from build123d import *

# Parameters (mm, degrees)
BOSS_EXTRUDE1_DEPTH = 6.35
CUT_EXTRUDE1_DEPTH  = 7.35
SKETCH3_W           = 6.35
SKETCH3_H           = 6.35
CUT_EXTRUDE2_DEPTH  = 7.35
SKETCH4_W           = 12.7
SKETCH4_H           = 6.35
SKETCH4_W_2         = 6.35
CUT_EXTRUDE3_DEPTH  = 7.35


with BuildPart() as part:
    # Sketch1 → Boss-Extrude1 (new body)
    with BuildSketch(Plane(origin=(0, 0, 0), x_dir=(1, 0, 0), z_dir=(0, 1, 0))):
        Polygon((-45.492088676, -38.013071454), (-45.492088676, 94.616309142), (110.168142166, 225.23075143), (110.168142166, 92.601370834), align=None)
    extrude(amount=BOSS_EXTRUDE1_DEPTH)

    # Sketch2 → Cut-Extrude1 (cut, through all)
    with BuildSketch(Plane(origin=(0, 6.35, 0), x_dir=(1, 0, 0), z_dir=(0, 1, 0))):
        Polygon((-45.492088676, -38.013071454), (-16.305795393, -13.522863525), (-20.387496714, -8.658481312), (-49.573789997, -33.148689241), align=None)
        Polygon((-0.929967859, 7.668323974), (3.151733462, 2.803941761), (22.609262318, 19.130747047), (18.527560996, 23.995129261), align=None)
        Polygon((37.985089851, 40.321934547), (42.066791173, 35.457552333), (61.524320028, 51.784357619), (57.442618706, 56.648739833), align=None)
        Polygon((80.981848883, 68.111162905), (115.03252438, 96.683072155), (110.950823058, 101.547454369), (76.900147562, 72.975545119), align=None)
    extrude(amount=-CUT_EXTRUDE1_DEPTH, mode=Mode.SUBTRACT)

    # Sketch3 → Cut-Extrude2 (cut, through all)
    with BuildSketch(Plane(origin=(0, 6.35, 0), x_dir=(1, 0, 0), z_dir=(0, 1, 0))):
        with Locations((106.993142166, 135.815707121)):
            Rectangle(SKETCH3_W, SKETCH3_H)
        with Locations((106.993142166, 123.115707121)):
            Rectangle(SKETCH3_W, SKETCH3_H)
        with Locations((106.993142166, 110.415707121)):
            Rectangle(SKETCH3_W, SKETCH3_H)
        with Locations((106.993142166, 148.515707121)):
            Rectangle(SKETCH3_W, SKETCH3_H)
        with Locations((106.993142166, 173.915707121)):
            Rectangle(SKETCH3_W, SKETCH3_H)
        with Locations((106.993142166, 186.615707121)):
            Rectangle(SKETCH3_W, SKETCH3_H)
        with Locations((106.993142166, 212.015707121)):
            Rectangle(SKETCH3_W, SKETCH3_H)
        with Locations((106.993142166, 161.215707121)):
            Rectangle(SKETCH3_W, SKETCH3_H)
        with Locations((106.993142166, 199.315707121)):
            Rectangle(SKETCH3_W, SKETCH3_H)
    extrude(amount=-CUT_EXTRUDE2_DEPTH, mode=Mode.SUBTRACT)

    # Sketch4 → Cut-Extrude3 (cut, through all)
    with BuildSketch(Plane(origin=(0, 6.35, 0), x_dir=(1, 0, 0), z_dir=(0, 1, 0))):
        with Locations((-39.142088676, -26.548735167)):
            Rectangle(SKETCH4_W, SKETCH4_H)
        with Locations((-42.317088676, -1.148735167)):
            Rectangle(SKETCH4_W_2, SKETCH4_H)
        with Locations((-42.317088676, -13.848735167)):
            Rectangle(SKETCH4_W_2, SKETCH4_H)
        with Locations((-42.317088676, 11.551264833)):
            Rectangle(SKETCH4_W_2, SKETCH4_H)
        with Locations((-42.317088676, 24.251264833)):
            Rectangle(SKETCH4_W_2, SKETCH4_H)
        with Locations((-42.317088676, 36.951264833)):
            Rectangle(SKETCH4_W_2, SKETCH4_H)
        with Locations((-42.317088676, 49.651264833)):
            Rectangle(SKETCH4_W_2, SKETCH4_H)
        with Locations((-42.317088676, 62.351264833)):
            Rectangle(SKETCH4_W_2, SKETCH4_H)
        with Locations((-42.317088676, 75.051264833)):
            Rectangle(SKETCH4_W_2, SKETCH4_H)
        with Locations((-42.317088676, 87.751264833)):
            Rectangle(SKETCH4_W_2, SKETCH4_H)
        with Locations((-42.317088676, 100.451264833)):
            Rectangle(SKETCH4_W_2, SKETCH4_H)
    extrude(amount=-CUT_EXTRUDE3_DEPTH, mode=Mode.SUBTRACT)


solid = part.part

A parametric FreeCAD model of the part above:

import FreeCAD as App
import Part
import Sketcher
Q = App.Units.Quantity

doc = App.newDocument("Part")
body = doc.addObject("PartDesign::Body", "Body")

sketch1 = body.newObject("Sketcher::SketchObject", "Sketch")
sketch1.AttachmentSupport = (doc.getObject("XZ_Plane"), [""])
sketch1.MapMode = "FlatFace"
sketch1.addGeometry([
    Part.LineSegment(App.Vector(-45, -95, 0), App.Vector(-45, 38, 0)),
    Part.LineSegment(App.Vector(-45, 38, 0), App.Vector(110, -93, 0)),
    Part.LineSegment(App.Vector(110, -93, 0), App.Vector(110, -225, 0)),
    Part.LineSegment(App.Vector(110, -225, 0), App.Vector(-45, -95, 0)),
], False)
sketch1.addConstraint([
    Sketcher.Constraint("Coincident", 0, 2, 1, 1),
    Sketcher.Constraint("Coincident", 1, 2, 2, 1),
    Sketcher.Constraint("Coincident", 2, 2, 3, 1),
    Sketcher.Constraint("Coincident", 3, 2, 0, 1),
    Sketcher.Constraint("Vertical", 0),
    Sketcher.Constraint("Vertical", 2),
    Sketcher.Constraint("Parallel", 1, 3),
    Sketcher.Constraint("Distance", 1, Q("8 in")),
    Sketcher.Constraint("Angle", 1, Q("-40 deg")),
    Sketcher.Constraint("DistanceY", 0, 1, 0, 2, Q("132.629381 mm")),
    Sketcher.Constraint("DistanceX", 0, 2, -1, 1, Q("45.492089 mm")),
    Sketcher.Constraint("DistanceY", -1, 1, 0, 2, Q("38.013071 mm")),
])
pad1 = body.newObject("PartDesign::Pad", "Pad")
pad1.Profile = sketch1
pad1.Length = Q("0.25 in")
pad1.Reversed = True

sketch2 = body.newObject("Sketcher::SketchObject", "Sketch001")
sketch2.AttachmentSupport = (doc.getObject("XZ_Plane"), [""])
sketch2.MapMode = "FlatFace"
sketch2.AttachmentOffset = App.Placement(App.Vector(0, 0, -0.25 * 25.4), App.Rotation())
sketch2.addGeometry([
    Part.LineSegment(App.Vector(-45, 38, 0), App.Vector(-16, 14, 0)),
    Part.LineSegment(App.Vector(-16, 14, 0), App.Vector(-20, 9, 0)),
    Part.LineSegment(App.Vector(-20, 9, 0), App.Vector(-50, 33, 0)),
    Part.LineSegment(App.Vector(-50, 33, 0), App.Vector(-45, 38, 0)),
    Part.LineSegment(App.Vector(-1, -8, 0), App.Vector(3, -3, 0)),
    Part.LineSegment(App.Vector(3, -3, 0), App.Vector(23, -19, 0)),
    Part.LineSegment(App.Vector(23, -19, 0), App.Vector(19, -24, 0)),
    Part.LineSegment(App.Vector(19, -24, 0), App.Vector(-1, -8, 0)),
    Part.LineSegment(App.Vector(38, -40, 0), App.Vector(42, -35, 0)),
    Part.LineSegment(App.Vector(42, -35, 0), App.Vector(62, -52, 0)),
    Part.LineSegment(App.Vector(62, -52, 0), App.Vector(57, -57, 0)),
    Part.LineSegment(App.Vector(57, -57, 0), App.Vector(38, -40, 0)),
    Part.LineSegment(App.Vector(81, -68, 0), App.Vector(115, -97, 0)),
    Part.LineSegment(App.Vector(115, -97, 0), App.Vector(111, -102, 0)),
    Part.LineSegment(App.Vector(111, -102, 0), App.Vector(77, -73, 0)),
    Part.LineSegment(App.Vector(77, -73, 0), App.Vector(81, -68, 0)),
], False)
sketch2.addConstraint([
    Sketcher.Constraint("Coincident", 0, 2, 1, 1),
    Sketcher.Constraint("Coincident", 1, 2, 2, 1),
    Sketcher.Constraint("Coincident", 2, 2, 3, 1),
    Sketcher.Constraint("Coincident", 3, 2, 0, 1),
    Sketcher.Constraint("Coincident", 4, 2, 5, 1),
    Sketcher.Constraint("Coincident", 5, 2, 6, 1),
    Sketcher.Constraint("Coincident", 6, 2, 7, 1),
    Sketcher.Constraint("Coincident", 7, 2, 4, 1),
    Sketcher.Constraint("Coincident", 8, 2, 9, 1),
    Sketcher.Constraint("Coincident", 9, 2, 10, 1),
    Sketcher.Constraint("Coincident", 10, 2, 11, 1),
    Sketcher.Constraint("Coincident", 11, 2, 8, 1),
    Sketcher.Constraint("Coincident", 12, 2, 13, 1),
    Sketcher.Constraint("Coincident", 13, 2, 14, 1),
    Sketcher.Constraint("Coincident", 14, 2, 15, 1),
    Sketcher.Constraint("Coincident", 15, 2, 12, 1),
    Sketcher.Constraint("Perpendicular", 0, 1),
    Sketcher.Constraint("Perpendicular", 1, 2),
    Sketcher.Constraint("Perpendicular", 2, 3),
    Sketcher.Constraint("Parallel", 3, 4),
    Sketcher.Constraint("Perpendicular", 4, 5),
    Sketcher.Constraint("Perpendicular", 5, 6),
    Sketcher.Constraint("Perpendicular", 6, 7),
    Sketcher.Constraint("Perpendicular", 7, 8),
    Sketcher.Constraint("Perpendicular", 8, 9),
    Sketcher.Constraint("Perpendicular", 9, 10),
    Sketcher.Constraint("Perpendicular", 10, 11),
    Sketcher.Constraint("Parallel", 11, 12),
    Sketcher.Constraint("Perpendicular", 12, 13),
    Sketcher.Constraint("Perpendicular", 13, 14),
    Sketcher.Constraint("Perpendicular", 14, 15),
    Sketcher.Constraint("Equal", 3, 4),
    Sketcher.Constraint("Equal", 6, 8),
    Sketcher.Constraint("Equal", 7, 9),
    Sketcher.Constraint("Equal", 10, 13),
    Sketcher.Constraint("Distance", 5, Q("1 in")),
    Sketcher.Constraint("Angle", 0, Q("-40 deg")),
    Sketcher.Constraint("Distance", 0, Q("1.5 in")),
    Sketcher.Constraint("Distance", 1, Q("0.25 in")),
    Sketcher.Constraint("Distance", 12, Q("1.75 in")),
    Sketcher.Constraint("DistanceY", -1, 1, 1, 2, Q("8.658481 mm")),
    Sketcher.Constraint("DistanceX", 2, 2, -1, 1, Q("49.57379 mm")),
    Sketcher.Constraint("DistanceY", 4, 2, -1, 1, Q("2.803942 mm")),
    Sketcher.Constraint("DistanceX", -1, 1, 6, 2, Q("18.527561 mm")),
    Sketcher.Constraint("DistanceX", -1, 1, 8, 2, Q("42.066791 mm")),
    Sketcher.Constraint("DistanceY", 10, 2, -1, 1, Q("56.64874 mm")),
    Sketcher.Constraint("DistanceX", -1, 1, 15, 2, Q("80.981849 mm")),
    Sketcher.Constraint("DistanceY", 12, 2, 8, 2, Q("61.22552 mm")),
])
pocket1 = body.newObject("PartDesign::Pocket", "Pocket")
pocket1.Profile = sketch2
pocket1.Type = "ThroughAll"
pocket1.Reversed = True

sketch3 = body.newObject("Sketcher::SketchObject", "Sketch002")
sketch3.AttachmentSupport = (doc.getObject("XZ_Plane"), [""])
sketch3.MapMode = "FlatFace"
sketch3.AttachmentOffset = App.Placement(App.Vector(0, 0, -0.25 * 25.4), App.Rotation())
sketch3.addGeometry([
    Part.LineSegment(App.Vector(104, -139, 0), App.Vector(104, -133, 0)),
    Part.LineSegment(App.Vector(104, -133, 0), App.Vector(110, -133, 0)),
    Part.LineSegment(App.Vector(110, -133, 0), App.Vector(110, -139, 0)),
    Part.LineSegment(App.Vector(110, -139, 0), App.Vector(104, -139, 0)),
    Part.LineSegment(App.Vector(104, -126, 0), App.Vector(104, -120, 0)),
    Part.LineSegment(App.Vector(104, -120, 0), App.Vector(110, -120, 0)),
    Part.LineSegment(App.Vector(110, -120, 0), App.Vector(110, -126, 0)),
    Part.LineSegment(App.Vector(110, -126, 0), App.Vector(104, -126, 0)),
    Part.LineSegment(App.Vector(104, -114, 0), App.Vector(104, -107, 0)),
    Part.LineSegment(App.Vector(104, -107, 0), App.Vector(110, -107, 0)),
    Part.LineSegment(App.Vector(110, -107, 0), App.Vector(110, -114, 0)),
    Part.LineSegment(App.Vector(110, -114, 0), App.Vector(104, -114, 0)),
    Part.LineSegment(App.Vector(104, -152, 0), App.Vector(104, -145, 0)),
    Part.LineSegment(App.Vector(104, -145, 0), App.Vector(110, -145, 0)),
    Part.LineSegment(App.Vector(110, -145, 0), App.Vector(110, -152, 0)),
    Part.LineSegment(App.Vector(110, -152, 0), App.Vector(104, -152, 0)),
    Part.LineSegment(App.Vector(104, -177, 0), App.Vector(104, -171, 0)),
    Part.LineSegment(App.Vector(104, -171, 0), App.Vector(110, -171, 0)),
    Part.LineSegment(App.Vector(110, -171, 0), App.Vector(110, -177, 0)),
    Part.LineSegment(App.Vector(110, -177, 0), App.Vector(104, -177, 0)),
    Part.LineSegment(App.Vector(104, -190, 0), App.Vector(104, -183, 0)),
    Part.LineSegment(App.Vector(104, -183, 0), App.Vector(110, -183, 0)),
    Part.LineSegment(App.Vector(110, -183, 0), App.Vector(110, -190, 0)),
    Part.LineSegment(App.Vector(110, -190, 0), App.Vector(104, -190, 0)),
    Part.LineSegment(App.Vector(104, -215, 0), App.Vector(104, -209, 0)),
    Part.LineSegment(App.Vector(104, -209, 0), App.Vector(110, -209, 0)),
    Part.LineSegment(App.Vector(110, -209, 0), App.Vector(110, -215, 0)),
    Part.LineSegment(App.Vector(110, -215, 0), App.Vector(104, -215, 0)),
    Part.LineSegment(App.Vector(104, -164, 0), App.Vector(104, -158, 0)),
    Part.LineSegment(App.Vector(104, -158, 0), App.Vector(110, -158, 0)),
    Part.LineSegment(App.Vector(110, -158, 0), App.Vector(110, -164, 0)),
    Part.LineSegment(App.Vector(110, -164, 0), App.Vector(104, -164, 0)),
    Part.LineSegment(App.Vector(104, -202, 0), App.Vector(104, -196, 0)),
    Part.LineSegment(App.Vector(104, -196, 0), App.Vector(110, -196, 0)),
    Part.LineSegment(App.Vector(110, -196, 0), App.Vector(110, -202, 0)),
    Part.LineSegment(App.Vector(110, -202, 0), App.Vector(104, -202, 0)),
], False)
sketch3.addConstraint([
    Sketcher.Constraint("Coincident", 0, 2, 1, 1),
    Sketcher.Constraint("Coincident", 1, 2, 2, 1),
    Sketcher.Constraint("Coincident", 2, 2, 3, 1),
    Sketcher.Constraint("Coincident", 3, 2, 0, 1),
    Sketcher.Constraint("Coincident", 4, 2, 5, 1),
    Sketcher.Constraint("Coincident", 5, 2, 6, 1),
    Sketcher.Constraint("Coincident", 6, 2, 7, 1),
    Sketcher.Constraint("Coincident", 7, 2, 4, 1),
    Sketcher.Constraint("Coincident", 8, 2, 9, 1),
    Sketcher.Constraint("Coincident", 9, 2, 10, 1),
    Sketcher.Constraint("Coincident", 10, 2, 11, 1),
    Sketcher.Constraint("Coincident", 11, 2, 8, 1),
    Sketcher.Constraint("Coincident", 12, 2, 13, 1),
    Sketcher.Constraint("Coincident", 13, 2, 14, 1),
    Sketcher.Constraint("Coincident", 14, 2, 15, 1),
    Sketcher.Constraint("Coincident", 15, 2, 12, 1),
    Sketcher.Constraint("Coincident", 16, 2, 17, 1),
    Sketcher.Constraint("Coincident", 17, 2, 18, 1),
    Sketcher.Constraint("Coincident", 18, 2, 19, 1),
    Sketcher.Constraint("Coincident", 19, 2, 16, 1),
    Sketcher.Constraint("Coincident", 20, 2, 21, 1),
    Sketcher.Constraint("Coincident", 21, 2, 22, 1),
    Sketcher.Constraint("Coincident", 22, 2, 23, 1),
    Sketcher.Constraint("Coincident", 23, 2, 20, 1),
    Sketcher.Constraint("Coincident", 24, 2, 25, 1),
    Sketcher.Constraint("Coincident", 25, 2, 26, 1),
    Sketcher.Constraint("Coincident", 26, 2, 27, 1),
    Sketcher.Constraint("Coincident", 27, 2, 24, 1),
    Sketcher.Constraint("Coincident", 28, 2, 29, 1),
    Sketcher.Constraint("Coincident", 29, 2, 30, 1),
    Sketcher.Constraint("Coincident", 30, 2, 31, 1),
    Sketcher.Constraint("Coincident", 31, 2, 28, 1),
    Sketcher.Constraint("Coincident", 32, 2, 33, 1),
    Sketcher.Constraint("Coincident", 33, 2, 34, 1),
    Sketcher.Constraint("Coincident", 34, 2, 35, 1),
    Sketcher.Constraint("Coincident", 35, 2, 32, 1),
    Sketcher.Constraint("Vertical", 0),
    Sketcher.Constraint("Horizontal", 1),
    Sketcher.Constraint("Vertical", 2),
    Sketcher.Constraint("Horizontal", 3),
    Sketcher.Constraint("Vertical", 4),
    Sketcher.Constraint("Horizontal", 5),
    Sketcher.Constraint("Vertical", 6),
    Sketcher.Constraint("Horizontal", 7),
    Sketcher.Constraint("Vertical", 8),
    Sketcher.Constraint("Horizontal", 9),
    Sketcher.Constraint("Vertical", 10),
    Sketcher.Constraint("Horizontal", 11),
    Sketcher.Constraint("Vertical", 12),
    Sketcher.Constraint("Horizontal", 13),
    Sketcher.Constraint("Vertical", 14),
    Sketcher.Constraint("Horizontal", 15),
    Sketcher.Constraint("Vertical", 16),
    Sketcher.Constraint("Horizontal", 17),
    Sketcher.Constraint("Vertical", 18),
    Sketcher.Constraint("Horizontal", 19),
    Sketcher.Constraint("Vertical", 20),
    Sketcher.Constraint("Horizontal", 21),
    Sketcher.Constraint("Vertical", 22),
    Sketcher.Constraint("Horizontal", 23),
    Sketcher.Constraint("Vertical", 24),
    Sketcher.Constraint("Horizontal", 25),
    Sketcher.Constraint("Vertical", 26),
    Sketcher.Constraint("Horizontal", 27),
    Sketcher.Constraint("Vertical", 28),
    Sketcher.Constraint("Horizontal", 29),
    Sketcher.Constraint("Vertical", 30),
    Sketcher.Constraint("Horizontal", 31),
    Sketcher.Constraint("Vertical", 32),
    Sketcher.Constraint("Horizontal", 33),
    Sketcher.Constraint("Vertical", 34),
    Sketcher.Constraint("Horizontal", 35),
    Sketcher.Constraint("Vertical", 3, 2, 4, 2),
    Sketcher.Constraint("Vertical", 2, 2, 5, 2),
    Sketcher.Constraint("Vertical", 7, 2, 8, 2),
    Sketcher.Constraint("Vertical", 6, 2, 9, 2),
    Sketcher.Constraint("Vertical", 11, 2, 12, 2),
    Sketcher.Constraint("Vertical", 10, 2, 13, 2),
    Sketcher.Constraint("Vertical", 15, 2, 16, 2),
    Sketcher.Constraint("Vertical", 14, 2, 17, 2),
    Sketcher.Constraint("Vertical", 19, 2, 20, 2),
    Sketcher.Constraint("Vertical", 18, 2, 21, 2),
    Sketcher.Constraint("Vertical", 23, 2, 24, 2),
    Sketcher.Constraint("Vertical", 22, 2, 25, 2),
    Sketcher.Constraint("Vertical", 27, 2, 28, 2),
    Sketcher.Constraint("Vertical", 26, 2, 29, 2),
    Sketcher.Constraint("Vertical", 31, 2, 32, 2),
    Sketcher.Constraint("Vertical", 30, 2, 33, 2),
    Sketcher.Constraint("Equal", 35, 0),
    Sketcher.Constraint("Equal", 2, 4),
    Sketcher.Constraint("Equal", 6, 8),
    Sketcher.Constraint("Equal", 10, 12),
    Sketcher.Constraint("Equal", 14, 16),
    Sketcher.Constraint("Equal", 18, 20),
    Sketcher.Constraint("Equal", 22, 24),
    Sketcher.Constraint("Equal", 26, 28),
    Sketcher.Constraint("Equal", 30, 32),
    Sketcher.Constraint("DistanceY", 0, 2, 8, 2, Q("1 in")),
    Sketcher.Constraint("DistanceY", 16, 2, 12, 2, Q("1 in")),
    Sketcher.Constraint("DistanceY", 24, 2, 20, 2, Q("1 in")),
    Sketcher.Constraint("DistanceX", 1, 1, 1, 2, Q("0.25 in")),
    Sketcher.Constraint("DistanceY", 0, 2, 4, 2, Q("0.5 in")),
    Sketcher.Constraint("DistanceY", 12, 2, 0, 2, Q("0.5 in")),
    Sketcher.Constraint("DistanceY", 20, 2, 16, 2, Q("0.5 in")),
    Sketcher.Constraint("DistanceY", 28, 2, 12, 2, Q("0.5 in")),
    Sketcher.Constraint("DistanceY", 32, 2, 20, 2, Q("0.5 in")),
    Sketcher.Constraint("DistanceX", -1, 1, 0, 2, Q("103.818142 mm")),
    Sketcher.Constraint("DistanceY", 0, 2, -1, 1, Q("132.640707 mm")),
])
pocket2 = body.newObject("PartDesign::Pocket", "Pocket001")
pocket2.Profile = sketch3
pocket2.Type = "ThroughAll"
pocket2.Reversed = True

sketch4 = body.newObject("Sketcher::SketchObject", "Sketch003")
sketch4.AttachmentSupport = (doc.getObject("XZ_Plane"), [""])
sketch4.MapMode = "FlatFace"
sketch4.AttachmentOffset = App.Placement(App.Vector(0, 0, -0.25 * 25.4), App.Rotation())
sketch4.addGeometry([
    Part.LineSegment(App.Vector(-45, 23, 0), App.Vector(-45, 30, 0)),
    Part.LineSegment(App.Vector(-45, 30, 0), App.Vector(-33, 30, 0)),
    Part.LineSegment(App.Vector(-33, 30, 0), App.Vector(-33, 23, 0)),
    Part.LineSegment(App.Vector(-33, 23, 0), App.Vector(-45, 23, 0)),
    Part.LineSegment(App.Vector(-45, -2, 0), App.Vector(-45, 4, 0)),
    Part.LineSegment(App.Vector(-45, 4, 0), App.Vector(-39, 4, 0)),
    Part.LineSegment(App.Vector(-39, 4, 0), App.Vector(-39, -2, 0)),
    Part.LineSegment(App.Vector(-39, -2, 0), App.Vector(-45, -2, 0)),
    Part.LineSegment(App.Vector(-45, 11, 0), App.Vector(-45, 17, 0)),
    Part.LineSegment(App.Vector(-45, 17, 0), App.Vector(-39, 17, 0)),
    Part.LineSegment(App.Vector(-39, 17, 0), App.Vector(-39, 11, 0)),
    Part.LineSegment(App.Vector(-39, 11, 0), App.Vector(-45, 11, 0)),
    Part.LineSegment(App.Vector(-45, -15, 0), App.Vector(-45, -8, 0)),
    Part.LineSegment(App.Vector(-45, -8, 0), App.Vector(-39, -8, 0)),
    Part.LineSegment(App.Vector(-39, -8, 0), App.Vector(-39, -15, 0)),
    Part.LineSegment(App.Vector(-39, -15, 0), App.Vector(-45, -15, 0)),
    Part.LineSegment(App.Vector(-45, -27, 0), App.Vector(-45, -21, 0)),
    Part.LineSegment(App.Vector(-45, -21, 0), App.Vector(-39, -21, 0)),
    Part.LineSegment(App.Vector(-39, -21, 0), App.Vector(-39, -27, 0)),
    Part.LineSegment(App.Vector(-39, -27, 0), App.Vector(-45, -27, 0)),
    Part.LineSegment(App.Vector(-45, -40, 0), App.Vector(-45, -34, 0)),
    Part.LineSegment(App.Vector(-45, -34, 0), App.Vector(-39, -34, 0)),
    Part.LineSegment(App.Vector(-39, -34, 0), App.Vector(-39, -40, 0)),
    Part.LineSegment(App.Vector(-39, -40, 0), App.Vector(-45, -40, 0)),
    Part.LineSegment(App.Vector(-45, -53, 0), App.Vector(-45, -46, 0)),
    Part.LineSegment(App.Vector(-45, -46, 0), App.Vector(-39, -46, 0)),
    Part.LineSegment(App.Vector(-39, -46, 0), App.Vector(-39, -53, 0)),
    Part.LineSegment(App.Vector(-39, -53, 0), App.Vector(-45, -53, 0)),
    Part.LineSegment(App.Vector(-45, -66, 0), App.Vector(-45, -59, 0)),
    Part.LineSegment(App.Vector(-45, -59, 0), App.Vector(-39, -59, 0)),
    Part.LineSegment(App.Vector(-39, -59, 0), App.Vector(-39, -66, 0)),
    Part.LineSegment(App.Vector(-39, -66, 0), App.Vector(-45, -66, 0)),
    Part.LineSegment(App.Vector(-45, -78, 0), App.Vector(-45, -72, 0)),
    Part.LineSegment(App.Vector(-45, -72, 0), App.Vector(-39, -72, 0)),
    Part.LineSegment(App.Vector(-39, -72, 0), App.Vector(-39, -78, 0)),
    Part.LineSegment(App.Vector(-39, -78, 0), App.Vector(-45, -78, 0)),
    Part.LineSegment(App.Vector(-45, -91, 0), App.Vector(-45, -85, 0)),
    Part.LineSegment(App.Vector(-45, -85, 0), App.Vector(-39, -85, 0)),
    Part.LineSegment(App.Vector(-39, -85, 0), App.Vector(-39, -91, 0)),
    Part.LineSegment(App.Vector(-39, -91, 0), App.Vector(-45, -91, 0)),
    Part.LineSegment(App.Vector(-45, -104, 0), App.Vector(-45, -97, 0)),
    Part.LineSegment(App.Vector(-45, -97, 0), App.Vector(-39, -97, 0)),
    Part.LineSegment(App.Vector(-39, -97, 0), App.Vector(-39, -104, 0)),
    Part.LineSegment(App.Vector(-39, -104, 0), App.Vector(-45, -104, 0)),
], False)
sketch4.addConstraint([
    Sketcher.Constraint("Coincident", 0, 2, 1, 1),
    Sketcher.Constraint("Coincident", 1, 2, 2, 1),
    Sketcher.Constraint("Coincident", 2, 2, 3, 1),
    Sketcher.Constraint("Coincident", 3, 2, 0, 1),
    Sketcher.Constraint("Coincident", 4, 2, 5, 1),
    Sketcher.Constraint("Coincident", 5, 2, 6, 1),
    Sketcher.Constraint("Coincident", 6, 2, 7, 1),
    Sketcher.Constraint("Coincident", 7, 2, 4, 1),
    Sketcher.Constraint("Coincident", 8, 2, 9, 1),
    Sketcher.Constraint("Coincident", 9, 2, 10, 1),
    Sketcher.Constraint("Coincident", 10, 2, 11, 1),
    Sketcher.Constraint("Coincident", 11, 2, 8, 1),
    Sketcher.Constraint("Coincident", 12, 2, 13, 1),
    Sketcher.Constraint("Coincident", 13, 2, 14, 1),
    Sketcher.Constraint("Coincident", 14, 2, 15, 1),
    Sketcher.Constraint("Coincident", 15, 2, 12, 1),
    Sketcher.Constraint("Coincident", 16, 2, 17, 1),
    Sketcher.Constraint("Coincident", 17, 2, 18, 1),
    Sketcher.Constraint("Coincident", 18, 2, 19, 1),
    Sketcher.Constraint("Coincident", 19, 2, 16, 1),
    Sketcher.Constraint("Coincident", 20, 2, 21, 1),
    Sketcher.Constraint("Coincident", 21, 2, 22, 1),
    Sketcher.Constraint("Coincident", 22, 2, 23, 1),
    Sketcher.Constraint("Coincident", 23, 2, 20, 1),
    Sketcher.Constraint("Coincident", 24, 2, 25, 1),
    Sketcher.Constraint("Coincident", 25, 2, 26, 1),
    Sketcher.Constraint("Coincident", 26, 2, 27, 1),
    Sketcher.Constraint("Coincident", 27, 2, 24, 1),
    Sketcher.Constraint("Coincident", 28, 2, 29, 1),
    Sketcher.Constraint("Coincident", 29, 2, 30, 1),
    Sketcher.Constraint("Coincident", 30, 2, 31, 1),
    Sketcher.Constraint("Coincident", 31, 2, 28, 1),
    Sketcher.Constraint("Coincident", 32, 2, 33, 1),
    Sketcher.Constraint("Coincident", 33, 2, 34, 1),
    Sketcher.Constraint("Coincident", 34, 2, 35, 1),
    Sketcher.Constraint("Coincident", 35, 2, 32, 1),
    Sketcher.Constraint("Coincident", 36, 2, 37, 1),
    Sketcher.Constraint("Coincident", 37, 2, 38, 1),
    Sketcher.Constraint("Coincident", 38, 2, 39, 1),
    Sketcher.Constraint("Coincident", 39, 2, 36, 1),
    Sketcher.Constraint("Coincident", 40, 2, 41, 1),
    Sketcher.Constraint("Coincident", 41, 2, 42, 1),
    Sketcher.Constraint("Coincident", 42, 2, 43, 1),
    Sketcher.Constraint("Coincident", 43, 2, 40, 1),
    Sketcher.Constraint("Vertical", 0),
    Sketcher.Constraint("Horizontal", 1),
    Sketcher.Constraint("Vertical", 2),
    Sketcher.Constraint("Horizontal", 3),
    Sketcher.Constraint("Vertical", 4),
    Sketcher.Constraint("Horizontal", 5),
    Sketcher.Constraint("Vertical", 6),
    Sketcher.Constraint("Horizontal", 7),
    Sketcher.Constraint("Vertical", 8),
    Sketcher.Constraint("Horizontal", 9),
    Sketcher.Constraint("Vertical", 10),
    Sketcher.Constraint("Horizontal", 11),
    Sketcher.Constraint("Vertical", 12),
    Sketcher.Constraint("Horizontal", 13),
    Sketcher.Constraint("Vertical", 14),
    Sketcher.Constraint("Horizontal", 15),
    Sketcher.Constraint("Vertical", 16),
    Sketcher.Constraint("Horizontal", 17),
    Sketcher.Constraint("Vertical", 18),
    Sketcher.Constraint("Horizontal", 19),
    Sketcher.Constraint("Vertical", 20),
    Sketcher.Constraint("Horizontal", 21),
    Sketcher.Constraint("Vertical", 22),
    Sketcher.Constraint("Horizontal", 23),
    Sketcher.Constraint("Vertical", 24),
    Sketcher.Constraint("Horizontal", 25),
    Sketcher.Constraint("Vertical", 26),
    Sketcher.Constraint("Horizontal", 27),
    Sketcher.Constraint("Vertical", 28),
    Sketcher.Constraint("Horizontal", 29),
    Sketcher.Constraint("Vertical", 30),
    Sketcher.Constraint("Horizontal", 31),
    Sketcher.Constraint("Vertical", 32),
    Sketcher.Constraint("Horizontal", 33),
    Sketcher.Constraint("Vertical", 34),
    Sketcher.Constraint("Horizontal", 35),
    Sketcher.Constraint("Vertical", 36),
    Sketcher.Constraint("Horizontal", 37),
    Sketcher.Constraint("Vertical", 38),
    Sketcher.Constraint("Horizontal", 39),
    Sketcher.Constraint("Vertical", 40),
    Sketcher.Constraint("Horizontal", 41),
    Sketcher.Constraint("Vertical", 42),
    Sketcher.Constraint("Horizontal", 43),
    Sketcher.Constraint("Vertical", 3, 2, 4, 2),
    Sketcher.Constraint("Vertical", 7, 2, 8, 2),
    Sketcher.Constraint("Vertical", 6, 2, 9, 2),
    Sketcher.Constraint("Vertical", 11, 2, 12, 2),
    Sketcher.Constraint("Vertical", 10, 2, 13, 2),
    Sketcher.Constraint("Vertical", 15, 2, 16, 2),
    Sketcher.Constraint("Vertical", 14, 2, 17, 2),
    Sketcher.Constraint("Vertical", 19, 2, 20, 2),
    Sketcher.Constraint("Vertical", 18, 2, 21, 2),
    Sketcher.Constraint("Vertical", 23, 2, 24, 2),
    Sketcher.Constraint("Vertical", 22, 2, 25, 2),
    Sketcher.Constraint("Vertical", 27, 2, 28, 2),
    Sketcher.Constraint("Vertical", 26, 2, 29, 2),
    Sketcher.Constraint("Vertical", 31, 2, 32, 2),
    Sketcher.Constraint("Vertical", 30, 2, 33, 2),
    Sketcher.Constraint("Vertical", 35, 2, 36, 2),
    Sketcher.Constraint("Vertical", 34, 2, 37, 2),
    Sketcher.Constraint("Vertical", 39, 2, 40, 2),
    Sketcher.Constraint("Vertical", 38, 2, 41, 2),
    Sketcher.Constraint("Equal", 43, 0),
    Sketcher.Constraint("Equal", 2, 4),
    Sketcher.Constraint("Equal", 6, 8),
    Sketcher.Constraint("Equal", 10, 12),
    Sketcher.Constraint("Equal", 14, 16),
    Sketcher.Constraint("Equal", 18, 20),
    Sketcher.Constraint("Equal", 22, 24),
    Sketcher.Constraint("Equal", 26, 28),
    Sketcher.Constraint("Equal", 30, 32),
    Sketcher.Constraint("Equal", 34, 36),
    Sketcher.Constraint("Equal", 38, 40),
    Sketcher.Constraint("DistanceX", 1, 1, 1, 2, Q("0.5 in")),
    Sketcher.Constraint("DistanceY", 4, 2, 0, 2, Q("1 in")),
    Sketcher.Constraint("DistanceX", 5, 1, 5, 2, Q("0.25 in")),
    Sketcher.Constraint("DistanceY", 8, 2, 0, 2, Q("0.5 in")),
    Sketcher.Constraint("DistanceY", 12, 2, 4, 2, Q("0.5 in")),
    Sketcher.Constraint("DistanceY", 16, 2, 12, 2, Q("0.5 in")),
    Sketcher.Constraint("DistanceY", 20, 2, 16, 2, Q("0.5 in")),
    Sketcher.Constraint("DistanceY", 24, 2, 20, 2, Q("0.5 in")),
    Sketcher.Constraint("DistanceY", 28, 2, 24, 2, Q("0.5 in")),
    Sketcher.Constraint("DistanceY", 32, 2, 28, 2, Q("0.5 in")),
    Sketcher.Constraint("DistanceY", 36, 2, 32, 2, Q("0.5 in")),
    Sketcher.Constraint("DistanceY", 40, 2, 36, 2, Q("0.5 in")),
    Sketcher.Constraint("DistanceX", 0, 2, -1, 1, Q("45.492089 mm")),
    Sketcher.Constraint("DistanceY", -1, 1, 0, 2, Q("29.723735 mm")),
])
pocket3 = body.newObject("PartDesign::Pocket", "Pocket002")
pocket3.Profile = sketch4
pocket3.Type = "ThroughAll"
pocket3.Reversed = True

doc.recompute()
